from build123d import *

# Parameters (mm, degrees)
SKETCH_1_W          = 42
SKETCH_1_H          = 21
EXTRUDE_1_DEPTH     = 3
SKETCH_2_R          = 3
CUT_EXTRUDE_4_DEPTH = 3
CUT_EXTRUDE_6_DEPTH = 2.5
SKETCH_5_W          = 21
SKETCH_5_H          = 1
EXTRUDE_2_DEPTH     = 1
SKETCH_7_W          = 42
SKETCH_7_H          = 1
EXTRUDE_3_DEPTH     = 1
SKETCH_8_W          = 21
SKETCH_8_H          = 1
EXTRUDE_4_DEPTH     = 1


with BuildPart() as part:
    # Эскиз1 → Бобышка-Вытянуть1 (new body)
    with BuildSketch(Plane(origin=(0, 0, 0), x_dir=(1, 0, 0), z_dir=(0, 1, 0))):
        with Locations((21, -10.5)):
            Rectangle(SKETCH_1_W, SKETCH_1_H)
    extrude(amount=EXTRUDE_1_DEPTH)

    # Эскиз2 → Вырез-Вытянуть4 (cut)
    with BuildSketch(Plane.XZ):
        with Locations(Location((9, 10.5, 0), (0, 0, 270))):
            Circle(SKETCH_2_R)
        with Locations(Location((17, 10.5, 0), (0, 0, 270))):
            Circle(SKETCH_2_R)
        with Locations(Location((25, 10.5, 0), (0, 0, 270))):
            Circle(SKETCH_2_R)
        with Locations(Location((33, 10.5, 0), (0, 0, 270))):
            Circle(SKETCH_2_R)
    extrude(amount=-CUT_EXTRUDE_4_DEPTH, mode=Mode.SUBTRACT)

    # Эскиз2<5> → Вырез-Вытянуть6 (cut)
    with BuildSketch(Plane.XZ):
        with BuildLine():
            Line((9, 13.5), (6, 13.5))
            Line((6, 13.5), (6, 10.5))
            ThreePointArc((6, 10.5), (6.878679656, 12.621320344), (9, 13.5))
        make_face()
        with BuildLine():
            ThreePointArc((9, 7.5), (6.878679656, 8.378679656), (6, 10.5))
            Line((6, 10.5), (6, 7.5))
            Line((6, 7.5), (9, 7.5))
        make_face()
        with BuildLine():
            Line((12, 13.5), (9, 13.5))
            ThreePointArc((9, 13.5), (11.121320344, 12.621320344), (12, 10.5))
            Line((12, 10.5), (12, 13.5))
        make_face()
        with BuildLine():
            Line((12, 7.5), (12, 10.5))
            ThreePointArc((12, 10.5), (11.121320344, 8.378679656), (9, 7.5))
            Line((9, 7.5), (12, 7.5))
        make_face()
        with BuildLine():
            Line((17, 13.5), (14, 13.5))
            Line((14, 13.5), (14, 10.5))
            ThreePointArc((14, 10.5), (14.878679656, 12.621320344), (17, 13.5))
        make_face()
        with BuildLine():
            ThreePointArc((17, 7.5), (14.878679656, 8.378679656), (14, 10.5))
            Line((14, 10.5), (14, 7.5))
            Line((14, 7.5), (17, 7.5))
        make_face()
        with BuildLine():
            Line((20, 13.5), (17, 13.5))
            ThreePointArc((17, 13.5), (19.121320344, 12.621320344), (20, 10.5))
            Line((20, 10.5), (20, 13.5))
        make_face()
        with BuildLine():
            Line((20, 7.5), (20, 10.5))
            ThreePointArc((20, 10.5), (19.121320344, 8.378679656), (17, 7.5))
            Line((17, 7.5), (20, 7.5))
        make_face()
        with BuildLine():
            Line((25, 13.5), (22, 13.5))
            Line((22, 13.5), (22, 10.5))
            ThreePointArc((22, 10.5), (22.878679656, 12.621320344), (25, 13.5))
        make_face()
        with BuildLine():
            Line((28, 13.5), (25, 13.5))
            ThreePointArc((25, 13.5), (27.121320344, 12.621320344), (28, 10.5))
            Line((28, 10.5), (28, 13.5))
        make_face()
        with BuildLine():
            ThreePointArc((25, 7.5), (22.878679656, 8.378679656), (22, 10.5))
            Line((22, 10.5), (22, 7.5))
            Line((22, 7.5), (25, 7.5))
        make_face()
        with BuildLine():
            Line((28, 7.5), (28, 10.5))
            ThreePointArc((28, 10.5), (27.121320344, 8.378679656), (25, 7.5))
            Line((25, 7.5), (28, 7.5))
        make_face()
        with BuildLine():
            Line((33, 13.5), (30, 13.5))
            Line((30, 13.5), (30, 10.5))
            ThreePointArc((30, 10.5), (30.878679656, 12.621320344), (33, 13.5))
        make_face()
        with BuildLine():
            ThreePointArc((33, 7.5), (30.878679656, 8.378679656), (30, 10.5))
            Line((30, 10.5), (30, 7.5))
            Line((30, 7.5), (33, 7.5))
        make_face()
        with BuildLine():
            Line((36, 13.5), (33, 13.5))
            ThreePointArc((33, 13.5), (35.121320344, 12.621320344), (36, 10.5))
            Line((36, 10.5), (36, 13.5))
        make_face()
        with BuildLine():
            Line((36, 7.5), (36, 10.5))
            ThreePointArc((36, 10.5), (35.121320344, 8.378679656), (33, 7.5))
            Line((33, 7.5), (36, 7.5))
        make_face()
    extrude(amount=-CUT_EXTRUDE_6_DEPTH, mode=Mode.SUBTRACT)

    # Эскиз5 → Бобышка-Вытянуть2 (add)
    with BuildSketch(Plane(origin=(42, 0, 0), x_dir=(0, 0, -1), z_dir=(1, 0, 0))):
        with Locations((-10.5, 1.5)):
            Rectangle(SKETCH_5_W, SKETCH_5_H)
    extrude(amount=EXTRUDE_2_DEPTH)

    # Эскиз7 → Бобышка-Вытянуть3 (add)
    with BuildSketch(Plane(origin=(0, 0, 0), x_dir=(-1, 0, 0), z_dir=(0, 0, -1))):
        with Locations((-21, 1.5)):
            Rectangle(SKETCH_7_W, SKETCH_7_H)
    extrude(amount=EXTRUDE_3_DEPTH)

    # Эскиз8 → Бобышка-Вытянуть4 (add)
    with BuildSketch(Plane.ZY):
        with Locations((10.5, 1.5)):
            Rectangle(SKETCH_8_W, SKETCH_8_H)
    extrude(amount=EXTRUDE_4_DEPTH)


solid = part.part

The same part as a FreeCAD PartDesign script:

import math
import FreeCAD as App
import Part
import Sketcher

V = App.Vector
Q = App.Units.Quantity


def add_polygon(sketch, points):
    """Adds a closed chain of lines whose ends are joined by coincident constraints."""
    first, n = sketch.GeometryCount, len(points)
    for a, b in zip(points, points[1:] + points[:1]):
        sketch.addGeometry(Part.LineSegment(App.Vector(*a, 0), App.Vector(*b, 0)), False)
    for i in range(n):
        sketch.addConstraint(Sketcher.Constraint("Coincident", first + i, 2, first + (i + 1) % n, 1))

doc = App.newDocument("Part")
params = doc.addObject("Spreadsheet::Sheet", "Params")
for row, (alias, value) in enumerate([
    ("sketch1_width", "42 mm"),
    ("sketch1_height", "21 mm"),
    ("pad1_length", "3 mm"),
    ("sketch2_diameter", "6 mm"),
    ("pocket1_length", "3 mm"),
    ("sketch3_radius", "3 mm"),
    ("pocket2_length", "2.5 mm"),
    ("sketch4_width", "1 mm"),
    ("sketch4_height", "21 mm"),
    ("pad2_length", "1 mm"),
    ("sketch5_width", "42 mm"),
    ("sketch5_height", "1 mm"),
    ("pad3_length", "1 mm"),
    ("sketch6_width", "1 mm"),
    ("sketch6_height", "21 mm"),
    ("pad4_length", "1 mm"),
], start=1):
    params.set(f"A{row}", alias)
    params.set(f"B{row}", "=" + value)
    params.setAlias(f"B{row}", alias)

body = doc.addObject("PartDesign::Body", "Body")

# Sketch on XZ plane
sketch1 = body.newObject("Sketcher::SketchObject", "Sketch")
sketch1.AttachmentSupport = (doc.getObject("XZ_Plane"), [""])
sketch1.MapMode = "FlatFace"
add_polygon(sketch1, [(0, 0), (0, 21), (42, 21), (42, 0)])  # lines 0-3
sketch1.addConstraint(Sketcher.Constraint("Vertical", 0))
sketch1.addConstraint(Sketcher.Constraint("Horizontal", 1))
sketch1.addConstraint(Sketcher.Constraint("Vertical", 2))
sketch1.addConstraint(Sketcher.Constraint("Horizontal", 3))
sketch1.addConstraint(Sketcher.Constraint("Coincident", 3, 2, -1, 1))
sketch1.addConstraint(Sketcher.Constraint("DistanceX", 1, 1, 1, 2, Q("42 mm")))
sketch1.addConstraint(Sketcher.Constraint("DistanceY", 0, 1, 0, 2, Q("21 mm")))
sketch1.setExpression("Constraints[9]", "Params.sketch1_width")
sketch1.setExpression("Constraints[10]", "Params.sketch1_height")
pad1 = body.newObject("PartDesign::Pad", "Pad")
pad1.Profile = sketch1
pad1.setExpression("Length", "Params.pad1_length")
pad1.Reversed = True

# Sketch on XZ plane
sketch2 = body.newObject("Sketcher::SketchObject", "Sketch001")
sketch2.AttachmentSupport = (doc.getObject("XZ_Plane"), [""])
sketch2.MapMode = "FlatFace"
sketch2.addGeometry(Part.Circle(V(9, 10.5, 0), V(0, 0, 1), 3), False)
sketch2.addGeometry(Part.Circle(V(17, 10.5, 0), V(0, 0, 1), 3), False)
sketch2.addGeometry(Part.Circle(V(25, 10.5, 0), V(0, 0, 1), 3), False)
sketch2.addGeometry(Part.Circle(V(33, 10.5, 0), V(0, 0, 1), 3), False)
sketch2.addConstraint(Sketcher.Constraint("Equal", 0, 1))
sketch2.addConstraint(Sketcher.Constraint("Equal", 1, 2))
sketch2.addConstraint(Sketcher.Constraint("Equal", 2, 3))
sketch2.addConstraint(Sketcher.Constraint("Horizontal", 0, 3, 1, 3))
sketch2.addConstraint(Sketcher.Constraint("Horizontal", 1, 3, 2, 3))
sketch2.addConstraint(Sketcher.Constraint("Horizontal", 2, 3, 3, 3))
sketch2.addConstraint(Sketcher.Constraint("Diameter", 0, Q("6 mm")))
sketch2.addConstraint(Sketcher.Constraint("DistanceX", -1, 1, 0, 3, Q("9 mm")))
sketch2.addConstraint(Sketcher.Constraint("DistanceX", -1, 1, 1, 3, Q("17 mm")))
sketch2.addConstraint(Sketcher.Constraint("DistanceX", -1, 1, 2, 3, Q("25 mm")))
sketch2.addConstraint(Sketcher.Constraint("DistanceX", -1, 1, 3, 3, Q("33 mm")))
sketch2.addConstraint(Sketcher.Constraint("DistanceY", -1, 1, 0, 3, Q("10.5 mm")))
sketch2.setExpression("Constraints[6]", "Params.sketch2_diameter")
pocket1 = body.newObject("PartDesign::Pocket", "Pocket")
pocket1.Profile = sketch2
pocket1.setExpression("Length", "Params.pocket1_length")

# Sketch on XZ plane
sketch3 = body.newObject("Sketcher::SketchObject", "Sketch002")
sketch3.AttachmentSupport = (doc.getObject("XZ_Plane"), [""])
sketch3.MapMode = "FlatFace"
sketch3.addGeometry(Part.LineSegment(V(9, 13.5, 0), V(6, 13.5, 0)), False)
sketch3.addGeometry(Part.LineSegment(V(6, 13.5, 0), V(6, 10.5, 0)), False)
sketch3.addGeometry(Part.ArcOfCircle(Part.Circle(V(9, 10.5, 0), V(0, 0, 1), 3), math.radians(90), math.radians(180)), False)
sketch3.addGeometry(Part.ArcOfCircle(Part.Circle(V(9, 10.5, 0), V(0, 0, 1), 3), math.radians(180), math.radians(270)), False)
sketch3.addGeometry(Part.LineSegment(V(6, 10.5, 0), V(6, 7.5, 0)), False)
sketch3.addGeometry(Part.LineSegment(V(6, 7.5, 0), V(9, 7.5, 0)), False)
sketch3.addGeometry(Part.LineSegment(V(12, 13.5, 0), V(9, 13.5, 0)), False)
sketch3.addGeometry(Part.ArcOfCircle(Part.Circle(V(9, 10.5, 0), V(0, 0, 1), 3), math.radians(0), math.radians(90)), False)
sketch3.addGeometry(Part.LineSegment(V(12, 10.5, 0), V(12, 13.5, 0)), False)
sketch3.addGeometry(Part.LineSegment(V(12, 7.5, 0), V(12, 10.5, 0)), False)
sketch3.addGeometry(Part.ArcOfCircle(Part.Circle(V(9, 10.5, 0), V(0, 0, 1), 3), math.radians(-90), math.radians(0)), False)
sketch3.addGeometry(Part.LineSegment(V(9, 7.5, 0), V(12, 7.5, 0)), False)
sketch3.addGeometry(Part.LineSegment(V(17, 13.5, 0), V(14, 13.5, 0)), False)
sketch3.addGeometry(Part.LineSegment(V(14, 13.5, 0), V(14, 10.5, 0)), False)
sketch3.addGeometry(Part.ArcOfCircle(Part.Circle(V(17, 10.5, 0), V(0, 0, 1), 3), math.radians(90), math.radians(180)), False)
sketch3.addGeometry(Part.ArcOfCircle(Part.Circle(V(17, 10.5, 0), V(0, 0, 1), 3), math.radians(180), math.radians(270)), False)
sketch3.addGeometry(Part.LineSegment(V(14, 10.5, 0), V(14, 7.5, 0)), False)
sketch3.addGeometry(Part.LineSegment(V(14, 7.5, 0), V(17, 7.5, 0)), False)
sketch3.addGeometry(Part.LineSegment(V(20, 13.5, 0), V(17, 13.5, 0)), False)
sketch3.addGeometry(Part.ArcOfCircle(Part.Circle(V(17, 10.5, 0), V(0, 0, 1), 3), math.radians(0), math.radians(90)), False)
sketch3.addGeometry(Part.LineSegment(V(20, 10.5, 0), V(20, 13.5, 0)), False)
sketch3.addGeometry(Part.LineSegment(V(20, 7.5, 0), V(20, 10.5, 0)), False)
sketch3.addGeometry(Part.ArcOfCircle(Part.Circle(V(17, 10.5, 0), V(0, 0, 1), 3), math.radians(-90), math.radians(0)), False)
sketch3.addGeometry(Part.LineSegment(V(17, 7.5, 0), V(20, 7.5, 0)), False)
sketch3.addGeometry(Part.LineSegment(V(25, 13.5, 0), V(22, 13.5, 0)), False)
sketch3.addGeometry(Part.LineSegment(V(22, 13.5, 0), V(22, 10.5, 0)), False)
sketch3.addGeometry(Part.ArcOfCircle(Part.Circle(V(25, 10.5, 0), V(0, 0, 1), 3), math.radians(90), math.radians(180)), False)
sketch3.addGeometry(Part.LineSegment(V(28, 13.5, 0), V(25, 13.5, 0)), False)
sketch3.addGeometry(Part.ArcOfCircle(Part.Circle(V(25, 10.5, 0), V(0, 0, 1), 3), math.radians(0), math.radians(90)), False)
sketch3.addGeometry(Part.LineSegment(V(28, 10.5, 0), V(28, 13.5, 0)), False)
sketch3.addGeometry(Part.ArcOfCircle(Part.Circle(V(25, 10.5, 0), V(0, 0, 1), 3), math.radians(180), math.radians(270)), False)
sketch3.addGeometry(Part.LineSegment(V(22, 10.5, 0), V(22, 7.5, 0)), False)
sketch3.addGeometry(Part.LineSegment(V(22, 7.5, 0), V(25, 7.5, 0)), False)
sketch3.addGeometry(Part.LineSegment(V(28, 7.5, 0), V(28, 10.5, 0)), False)
sketch3.addGeometry(Part.ArcOfCircle(Part.Circle(V(25, 10.5, 0), V(0, 0, 1), 3), math.radians(-90), math.radians(0)), False)
sketch3.addGeometry(Part.LineSegment(V(25, 7.5, 0), V(28, 7.5, 0)), False)
sketch3.addGeometry(Part.LineSegment(V(33, 13.5, 0), V(30, 13.5, 0)), False)
sketch3.addGeometry(Part.LineSegment(V(30, 13.5, 0), V(30, 10.5, 0)), False)
sketch3.addGeometry(Part.ArcOfCircle(Part.Circle(V(33, 10.5, 0), V(0, 0, 1), 3), math.radians(90), math.radians(180)), False)
sketch3.addGeometry(Part.ArcOfCircle(Part.Circle(V(33, 10.5, 0), V(0, 0, 1), 3), math.radians(180), math.radians(270)), False)
sketch3.addGeometry(Part.LineSegment(V(30, 10.5, 0), V(30, 7.5, 0)), False)
sketch3.addGeometry(Part.LineSegment(V(30, 7.5, 0), V(33, 7.5, 0)), False)
sketch3.addGeometry(Part.LineSegment(V(36, 13.5, 0), V(33, 13.5, 0)), False)
sketch3.addGeometry(Part.ArcOfCircle(Part.Circle(V(33, 10.5, 0), V(0, 0, 1), 3), math.radians(0), math.radians(90)), False)
sketch3.addGeometry(Part.LineSegment(V(36, 10.5, 0), V(36, 13.5, 0)), False)
sketch3.addGeometry(Part.LineSegment(V(36, 7.5, 0), V(36, 10.5, 0)), False)
sketch3.addGeometry(Part.ArcOfCircle(Part.Circle(V(33, 10.5, 0), V(0, 0, 1), 3), math.radians(-90), math.radians(0)), False)
sketch3.addGeometry(Part.LineSegment(V(33, 7.5, 0), V(36, 7.5, 0)), False)
sketch3.addConstraint(Sketcher.Constraint("Coincident", 0, 2, 1, 1))
sketch3.addConstraint(Sketcher.Constraint("Tangent", 1, 2, 2, 2))
sketch3.addConstraint(Sketcher.Constraint("Tangent", 2, 1, 0, 1))
sketch3.addConstraint(Sketcher.Constraint("Tangent", 3, 1, 4, 1))
sketch3.addConstraint(Sketcher.Constraint("Coincident", 4, 2, 5, 1))
sketch3.addConstraint(Sketcher.Constraint("Tangent", 5, 2, 3, 2))
sketch3.addConstraint(Sketcher.Constraint("Tangent", 6, 2, 7, 2))
sketch3.addConstraint(Sketcher.Constraint("Tangent", 7, 1, 8, 1))
sketch3.addConstraint(Sketcher.Constraint("Coincident", 8, 2, 6, 1))
sketch3.addConstraint(Sketcher.Constraint("Tangent", 9, 2, 10, 2))
sketch3.addConstraint(Sketcher.Constraint("Tangent", 10, 1, 11, 1))
sketch3.addConstraint(Sketcher.Constraint("Coincident", 11, 2, 9, 1))
sketch3.addConstraint(Sketcher.Constraint("Coincident", 12, 2, 13, 1))
sketch3.addConstraint(Sketcher.Constraint("Tangent", 13, 2, 14, 2))
sketch3.addConstraint(Sketcher.Constraint("Tangent", 14, 1, 12, 1))
sketch3.addConstraint(Sketcher.Constraint("Tangent", 15, 1, 16, 1))
sketch3.addConstraint(Sketcher.Constraint("Coincident", 16, 2, 17, 1))
sketch3.addConstraint(Sketcher.Constraint("Tangent", 17, 2, 15, 2))
sketch3.addConstraint(Sketcher.Constraint("Tangent", 18, 2, 19, 2))
sketch3.addConstraint(Sketcher.Constraint("Tangent", 19, 1, 20, 1))
sketch3.addConstraint(Sketcher.Constraint("Coincident", 20, 2, 18, 1))
sketch3.addConstraint(Sketcher.Constraint("Tangent", 21, 2, 22, 2))
sketch3.addConstraint(Sketcher.Constraint("Tangent", 22, 1, 23, 1))
sketch3.addConstraint(Sketcher.Constraint("Coincident", 23, 2, 21, 1))
sketch3.addConstraint(Sketcher.Constraint("Coincident", 24, 2, 25, 1))
sketch3.addConstraint(Sketcher.Constraint("Tangent", 25, 2, 26, 2))
sketch3.addConstraint(Sketcher.Constraint("Tangent", 26, 1, 24, 1))
sketch3.addConstraint(Sketcher.Constraint("Tangent", 27, 2, 28, 2))
sketch3.addConstraint(Sketcher.Constraint("Tangent", 28, 1, 29, 1))
sketch3.addConstraint(Sketcher.Constraint("Coincident", 29, 2, 27, 1))
sketch3.addConstraint(Sketcher.Constraint("Tangent", 30, 1, 31, 1))
sketch3.addConstraint(Sketcher.Constraint("Coincident", 31, 2, 32, 1))
sketch3.addConstraint(Sketcher.Constraint("Tangent", 32, 2, 30, 2))
sketch3.addConstraint(Sketcher.Constraint("Tangent", 33, 2, 34, 2))
sketch3.addConstraint(Sketcher.Constraint("Tangent", 34, 1, 35, 1))
sketch3.addConstraint(Sketcher.Constraint("Coincident", 35, 2, 33, 1))
sketch3.addConstraint(Sketcher.Constraint("Coincident", 36, 2, 37, 1))
sketch3.addConstraint(Sketcher.Constraint("Tangent", 37, 2, 38, 2))
sketch3.addConstraint(Sketcher.Constraint("Tangent", 38, 1, 36, 1))
sketch3.addConstraint(Sketcher.Constraint("Tangent", 39, 1, 40, 1))
sketch3.addConstraint(Sketcher.Constraint("Coincident", 40, 2, 41, 1))
sketch3.addConstraint(Sketcher.Constraint("Tangent", 41, 2, 39, 2))
sketch3.addConstraint(Sketcher.Constraint("Tangent", 42, 2, 43, 2))
sketch3.addConstraint(Sketcher.Constraint("Tangent", 43, 1, 44, 1))
sketch3.addConstraint(Sketcher.Constraint("Coincident", 44, 2, 42, 1))
sketch3.addConstraint(Sketcher.Constraint("Tangent", 45, 2, 46, 2))
sketch3.addConstraint(Sketcher.Constraint("Tangent", 46, 1, 47, 1))
sketch3.addConstraint(Sketcher.Constraint("Coincident", 47, 2, 45, 1))
sketch3.addConstraint(Sketcher.Constraint("Horizontal", 0))
sketch3.addConstraint(Sketcher.Constraint("Vertical", 1))
sketch3.addConstraint(Sketcher.Constraint("Vertical", 4))
sketch3.addConstraint(Sketcher.Constraint("Horizontal", 5))
sketch3.addConstraint(Sketcher.Constraint("Horizontal", 6))
sketch3.addConstraint(Sketcher.Constraint("Vertical", 8))
sketch3.addConstraint(Sketcher.Constraint("Vertical", 9))
sketch3.addConstraint(Sketcher.Constraint("Horizontal", 11))
sketch3.addConstraint(Sketcher.Constraint("Horizontal", 12))
sketch3.addConstraint(Sketcher.Constraint("Vertical", 13))
sketch3.addConstraint(Sketcher.Constraint("Vertical", 16))
sketch3.addConstraint(Sketcher.Constraint("Horizontal", 17))
sketch3.addConstraint(Sketcher.Constraint("Horizontal", 18))
sketch3.addConstraint(Sketcher.Constraint("Vertical", 20))
sketch3.addConstraint(Sketcher.Constraint("Vertical", 21))
sketch3.addConstraint(Sketcher.Constraint("Horizontal", 23))
sketch3.addConstraint(Sketcher.Constraint("Horizontal", 24))
sketch3.addConstraint(Sketcher.Constraint("Vertical", 25))
sketch3.addConstraint(Sketcher.Constraint("Horizontal", 27))
sketch3.addConstraint(Sketcher.Constraint("Vertical", 29))
sketch3.addConstraint(Sketcher.Constraint("Vertical", 31))
sketch3.addConstraint(Sketcher.Constraint("Horizontal", 32))
sketch3.addConstraint(Sketcher.Constraint("Vertical", 33))
sketch3.addConstraint(Sketcher.Constraint("Horizontal", 35))
sketch3.addConstraint(Sketcher.Constraint("Horizontal", 36))
sketch3.addConstraint(Sketcher.Constraint("Vertical", 37))
sketch3.addConstraint(Sketcher.Constraint("Vertical", 40))
sketch3.addConstraint(Sketcher.Constraint("Horizontal", 41))
sketch3.addConstraint(Sketcher.Constraint("Horizontal", 42))
sketch3.addConstraint(Sketcher.Constraint("Vertical", 44))
sketch3.addConstraint(Sketcher.Constraint("Vertical", 45))
sketch3.addConstraint(Sketcher.Constraint("Horizontal", 47))
sketch3.addConstraint(Sketcher.Constraint("Coincident", 3, 3, 2, 3))
sketch3.addConstraint(Sketcher.Constraint("Coincident", 7, 3, 2, 3))
sketch3.addConstraint(Sketcher.Constraint("Coincident", 10, 3, 2, 3))
sketch3.addConstraint(Sketcher.Constraint("Coincident", 15, 3, 14, 3))
sketch3.addConstraint(Sketcher.Constraint("Coincident", 19, 3, 14, 3))
sketch3.addConstraint(Sketcher.Constraint("Coincident", 22, 3, 14, 3))
sketch3.addConstraint(Sketcher.Constraint("Coincident", 28, 3, 26, 3))
sketch3.addConstraint(Sketcher.Constraint("Coincident", 30, 3, 26, 3))
sketch3.addConstraint(Sketcher.Constraint("Coincident", 34, 3, 26, 3))
sketch3.addConstraint(Sketcher.Constraint("Coincident", 39, 3, 38, 3))
sketch3.addConstraint(Sketcher.Constraint("Coincident", 43, 3, 38, 3))
sketch3.addConstraint(Sketcher.Constraint("Coincident", 46, 3, 38, 3))
sketch3.addConstraint(Sketcher.Constraint("Equal", 2, 3))
sketch3.addConstraint(Sketcher.Constraint("Equal", 3, 7))
sketch3.addConstraint(Sketcher.Constraint("Equal", 7, 10))
sketch3.addConstraint(Sketcher.Constraint("Equal", 10, 14))
sketch3.addConstraint(Sketcher.Constraint("Equal", 14, 15))
sketch3.addConstraint(Sketcher.Constraint("Equal", 15, 19))
sketch3.addConstraint(Sketcher.Constraint("Equal", 19, 22))
sketch3.addConstraint(Sketcher.Constraint("Equal", 22, 26))
sketch3.addConstraint(Sketcher.Constraint("Equal", 26, 28))
sketch3.addConstraint(Sketcher.Constraint("Equal", 28, 30))
sketch3.addConstraint(Sketcher.Constraint("Equal", 30, 34))
sketch3.addConstraint(Sketcher.Constraint("Equal", 34, 38))
sketch3.addConstraint(Sketcher.Constraint("Equal", 38, 39))
sketch3.addConstraint(Sketcher.Constraint("Equal", 39, 43))
sketch3.addConstraint(Sketcher.Constraint("Equal", 43, 46))
sketch3.addConstraint(Sketcher.Constraint("Horizontal", 10, 3, 14, 3))
sketch3.addConstraint(Sketcher.Constraint("Horizontal", 22, 3, 26, 3))
sketch3.addConstraint(Sketcher.Constraint("Horizontal", 34, 3, 38, 3))
sketch3.addConstraint(Sketcher.Constraint("Radius", 2, Q("3 mm")))
sketch3.addConstraint(Sketcher.Constraint("DistanceX", -1, 1, 2, 3, Q("9 mm")))
sketch3.addConstraint(Sketcher.Constraint("DistanceX", -1, 1, 14, 3, Q("17 mm")))
sketch3.addConstraint(Sketcher.Constraint("DistanceX", -1, 1, 26, 3, Q("25 mm")))
sketch3.addConstraint(Sketcher.Constraint("DistanceX", -1, 1, 38, 3, Q("33 mm")))
sketch3.addConstraint(Sketcher.Constraint("DistanceY", -1, 1, 2, 3, Q("10.5 mm")))
sketch3.setExpression("Constraints[110]", "Params.sketch3_radius")
pocket2 = body.newObject("PartDesign::Pocket", "Pocket001")
pocket2.Profile = sketch3
pocket2.setExpression("Length", "Params.pocket2_length")

# Sketch on YZ plane
sketch4 = body.newObject("Sketcher::SketchObject", "Sketch003")
sketch4.AttachmentSupport = (doc.getObject("YZ_Plane"), [""])
sketch4.MapMode = "FlatFace"
sketch4.AttachmentOffset = App.Placement(V(0, 0, 42), App.Rotation())
add_polygon(sketch4, [(2, 21), (1, 21), (1, 0), (2, 0)])  # lines 0-3
sketch4.addConstraint(Sketcher.Constraint("Horizontal", 0))
sketch4.addConstraint(Sketcher.Constraint("Vertical", 1))
sketch4.addConstraint(Sketcher.Constraint("Horizontal", 2))
sketch4.addConstraint(Sketcher.Constraint("Vertical", 3))
sketch4.addConstraint(Sketcher.Constraint("PointOnObject", 1, 2, -1))
sketch4.addConstraint(Sketcher.Constraint("DistanceX", 0, 2, 0, 1, Q("1 mm")))
sketch4.addConstraint(Sketcher.Constraint("DistanceY", 1, 2, 1, 1, Q("21 mm")))
sketch4.addConstraint(Sketcher.Constraint("DistanceX", -1, 1, 0, 2, Q("1 mm")))
sketch4.setExpression("Constraints[9]", "Params.sketch4_width")
sketch4.setExpression("Constraints[10]", "Params.sketch4_height")
pad2 = body.newObject("PartDesign::Pad", "Pad001")
pad2.Profile = sketch4
pad2.setExpression("Length", "Params.pad2_length")

# Sketch on XY plane
sketch5 = body.newObject("Sketcher::SketchObject", "Sketch004")
sketch5.AttachmentSupport = (doc.getObject("XY_Plane"), [""])
sketch5.MapMode = "FlatFace"
add_polygon(sketch5, [(42, 2), (42, 1), (0, 1), (0, 2)])  # lines 0-3
sketch5.addConstraint(Sketcher.Constraint("Vertical", 0))
sketch5.addConstraint(Sketcher.Constraint("Horizontal", 1))
sketch5.addConstraint(Sketcher.Constraint("Vertical", 2))
sketch5.addConstraint(Sketcher.Constraint("Horizontal", 3))
sketch5.addConstraint(Sketcher.Constraint("PointOnObject", 1, 2, -2))
sketch5.addConstraint(Sketcher.Constraint("DistanceX", 1, 2, 1, 1, Q("42 mm")))
sketch5.addConstraint(Sketcher.Constraint("DistanceY", 0, 2, 0, 1, Q("1 mm")))
sketch5.addConstraint(Sketcher.Constraint("DistanceY", -1, 1, 0, 2, Q("1 mm")))
sketch5.setExpression("Constraints[9]", "Params.sketch5_width")
sketch5.setExpression("Constraints[10]", "Params.sketch5_height")
pad3 = body.newObject("PartDesign::Pad", "Pad002")
pad3.Profile = sketch5
pad3.setExpression("Length", "Params.pad3_length")
pad3.Reversed = True

# Sketch on YZ plane
sketch6 = body.newObject("Sketcher::SketchObject", "Sketch005")
sketch6.AttachmentSupport = (doc.getObject("YZ_Plane"), [""])
sketch6.MapMode = "FlatFace"
add_polygon(sketch6, [(2, 0), (1, 0), (1, 21), (2, 21)])  # lines 0-3
sketch6.addConstraint(Sketcher.Constraint("Horizontal", 0))
sketch6.addConstraint(Sketcher.Constraint("Vertical", 1))
sketch6.addConstraint(Sketcher.Constraint("Horizontal", 2))
sketch6.addConstraint(Sketcher.Constraint("Vertical", 3))
sketch6.addConstraint(Sketcher.Constraint("PointOnObject", 0, 2, -1))
sketch6.addConstraint(Sketcher.Constraint("DistanceX", 0, 2, 0, 1, Q("1 mm")))
sketch6.addConstraint(Sketcher.Constraint("DistanceY", 1, 1, 1, 2, Q("21 mm")))
sketch6.addConstraint(Sketcher.Constraint("DistanceX", -1, 1, 0, 2, Q("1 mm")))
sketch6.setExpression("Constraints[9]", "Params.sketch6_width")
sketch6.setExpression("Constraints[10]", "Params.sketch6_height")
pad4 = body.newObject("PartDesign::Pad", "Pad003")
pad4.Profile = sketch6
pad4.setExpression("Length", "Params.pad4_length")
pad4.Reversed = True

doc.recompute()
